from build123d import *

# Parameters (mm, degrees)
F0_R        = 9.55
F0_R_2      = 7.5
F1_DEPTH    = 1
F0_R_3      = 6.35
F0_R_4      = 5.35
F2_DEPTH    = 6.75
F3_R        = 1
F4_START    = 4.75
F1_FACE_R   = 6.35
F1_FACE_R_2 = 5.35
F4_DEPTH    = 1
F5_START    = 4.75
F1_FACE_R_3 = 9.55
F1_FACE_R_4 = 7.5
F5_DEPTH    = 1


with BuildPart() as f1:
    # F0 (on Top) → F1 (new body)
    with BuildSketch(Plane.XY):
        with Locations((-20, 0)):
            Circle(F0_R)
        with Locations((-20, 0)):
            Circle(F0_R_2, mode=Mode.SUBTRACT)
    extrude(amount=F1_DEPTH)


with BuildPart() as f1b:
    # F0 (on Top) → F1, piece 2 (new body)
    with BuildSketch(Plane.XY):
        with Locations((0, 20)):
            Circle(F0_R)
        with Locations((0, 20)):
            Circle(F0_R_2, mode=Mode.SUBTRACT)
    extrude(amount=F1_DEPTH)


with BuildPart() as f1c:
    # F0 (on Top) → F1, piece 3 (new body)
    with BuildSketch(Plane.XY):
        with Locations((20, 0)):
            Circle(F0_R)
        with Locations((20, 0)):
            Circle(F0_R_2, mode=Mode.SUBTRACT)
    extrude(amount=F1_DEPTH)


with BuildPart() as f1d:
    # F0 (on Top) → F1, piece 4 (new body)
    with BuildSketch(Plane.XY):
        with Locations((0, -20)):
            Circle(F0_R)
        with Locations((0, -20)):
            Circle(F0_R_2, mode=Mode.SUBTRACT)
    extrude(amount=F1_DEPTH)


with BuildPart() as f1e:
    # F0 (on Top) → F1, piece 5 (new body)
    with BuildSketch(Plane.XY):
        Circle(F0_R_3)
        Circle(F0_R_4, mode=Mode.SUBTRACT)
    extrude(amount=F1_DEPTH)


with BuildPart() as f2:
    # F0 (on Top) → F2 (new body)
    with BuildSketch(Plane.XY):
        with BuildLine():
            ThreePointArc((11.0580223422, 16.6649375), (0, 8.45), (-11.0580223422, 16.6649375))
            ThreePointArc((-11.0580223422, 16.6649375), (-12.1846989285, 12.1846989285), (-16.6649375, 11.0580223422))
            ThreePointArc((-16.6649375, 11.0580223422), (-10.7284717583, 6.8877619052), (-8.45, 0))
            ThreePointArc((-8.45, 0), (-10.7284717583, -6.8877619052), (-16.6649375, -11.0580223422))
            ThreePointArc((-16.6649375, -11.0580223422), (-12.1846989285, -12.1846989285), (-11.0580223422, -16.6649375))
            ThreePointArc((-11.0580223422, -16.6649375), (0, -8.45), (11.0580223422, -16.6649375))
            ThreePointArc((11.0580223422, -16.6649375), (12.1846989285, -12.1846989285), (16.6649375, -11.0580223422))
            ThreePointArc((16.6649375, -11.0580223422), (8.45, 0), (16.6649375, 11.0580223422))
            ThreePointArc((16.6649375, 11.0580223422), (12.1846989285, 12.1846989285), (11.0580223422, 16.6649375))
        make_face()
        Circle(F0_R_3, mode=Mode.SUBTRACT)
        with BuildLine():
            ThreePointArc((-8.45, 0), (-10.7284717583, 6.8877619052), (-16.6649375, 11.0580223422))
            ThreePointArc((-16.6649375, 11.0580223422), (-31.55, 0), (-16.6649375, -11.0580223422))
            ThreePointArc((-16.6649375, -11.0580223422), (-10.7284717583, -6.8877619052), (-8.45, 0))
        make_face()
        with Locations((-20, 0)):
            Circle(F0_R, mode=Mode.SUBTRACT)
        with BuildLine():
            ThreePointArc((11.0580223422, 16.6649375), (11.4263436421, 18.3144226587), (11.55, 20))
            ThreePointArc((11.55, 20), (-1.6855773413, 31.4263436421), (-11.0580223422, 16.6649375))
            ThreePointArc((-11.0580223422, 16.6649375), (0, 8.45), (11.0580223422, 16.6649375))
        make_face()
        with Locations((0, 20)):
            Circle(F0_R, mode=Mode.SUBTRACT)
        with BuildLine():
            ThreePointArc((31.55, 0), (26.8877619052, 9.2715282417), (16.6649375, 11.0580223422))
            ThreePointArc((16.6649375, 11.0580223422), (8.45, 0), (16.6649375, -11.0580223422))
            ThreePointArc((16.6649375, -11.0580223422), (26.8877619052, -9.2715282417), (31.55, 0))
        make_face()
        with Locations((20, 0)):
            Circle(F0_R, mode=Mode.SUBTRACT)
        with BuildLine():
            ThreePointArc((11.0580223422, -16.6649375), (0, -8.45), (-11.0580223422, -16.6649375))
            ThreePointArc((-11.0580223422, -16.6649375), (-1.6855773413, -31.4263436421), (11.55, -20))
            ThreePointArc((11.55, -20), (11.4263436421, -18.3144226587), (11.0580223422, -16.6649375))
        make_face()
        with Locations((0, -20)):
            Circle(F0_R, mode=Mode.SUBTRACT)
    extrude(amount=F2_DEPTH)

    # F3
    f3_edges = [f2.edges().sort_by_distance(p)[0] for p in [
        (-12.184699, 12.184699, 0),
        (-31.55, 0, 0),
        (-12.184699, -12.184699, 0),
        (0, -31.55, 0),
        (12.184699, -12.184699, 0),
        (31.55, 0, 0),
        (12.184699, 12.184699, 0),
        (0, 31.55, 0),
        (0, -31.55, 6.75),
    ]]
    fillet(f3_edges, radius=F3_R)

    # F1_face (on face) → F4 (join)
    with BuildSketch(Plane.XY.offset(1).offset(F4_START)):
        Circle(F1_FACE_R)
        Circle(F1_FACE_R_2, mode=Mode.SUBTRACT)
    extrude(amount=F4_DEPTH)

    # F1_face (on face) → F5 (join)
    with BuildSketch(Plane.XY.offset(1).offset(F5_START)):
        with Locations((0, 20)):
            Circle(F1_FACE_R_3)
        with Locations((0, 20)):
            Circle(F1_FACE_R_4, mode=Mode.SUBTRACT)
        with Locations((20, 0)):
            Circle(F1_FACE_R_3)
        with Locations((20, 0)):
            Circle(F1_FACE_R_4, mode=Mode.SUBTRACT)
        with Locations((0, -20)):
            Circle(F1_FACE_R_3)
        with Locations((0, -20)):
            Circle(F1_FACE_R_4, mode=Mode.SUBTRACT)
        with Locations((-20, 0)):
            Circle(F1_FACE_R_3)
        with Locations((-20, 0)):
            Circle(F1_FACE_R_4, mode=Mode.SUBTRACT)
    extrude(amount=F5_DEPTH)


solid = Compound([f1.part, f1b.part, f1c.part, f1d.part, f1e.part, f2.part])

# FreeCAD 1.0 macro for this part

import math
import FreeCAD as App
import Part
import Sketcher
from FreeCAD import Vector
Q = App.Units.Quantity


def edges_at(feature, points):
    """Names of the edges that pass closest to the given points."""
    edges = feature.Shape.Edges
    near = lambda p: min(range(len(edges)), key=lambda i: edges[i].distToShape(Part.Vertex(*p))[0])
    return sorted({f"Edge{near(p) + 1}" for p in points})

doc = App.newDocument("Part")
body = doc.addObject("PartDesign::Body", "Body")

# Sketch on XY plane
sketch1 = doc.addObject("Sketcher::SketchObject", "Sketch")
body.addObject(sketch1)
sketch1.AttachmentSupport = (doc.XY_Plane, [""])
sketch1.MapMode = "FlatFace"
sketch1.addGeometry(Part.Circle(Vector(-20, 0, 0), Vector(0, 0, 1), 10), False)
sketch1.addGeometry(Part.Circle(Vector(-20, 0, 0), Vector(0, 0, 1), 8), False)
sketch1.addConstraint(Sketcher.Constraint("Coincident", 1, 3, 0, 3))
sketch1.addConstraint(Sketcher.Constraint("PointOnObject", 0, 3, -1))
sketch1.addConstraint(Sketcher.Constraint("Diameter", 1, Q("15 mm")))
sketch1.addConstraint(Sketcher.Constraint("Diameter", 0, Q("19.1 mm")))
sketch1.addConstraint(Sketcher.Constraint("DistanceX", 0, 3, -1, 1, Q("20 mm")))
pad1 = doc.addObject("PartDesign::Pad", "Pad")
body.addObject(pad1)
pad1.Profile = sketch1
pad1.Length = 1
body2 = doc.addObject("PartDesign::Body", "Body001")

# Sketch on XY plane
sketch2 = doc.addObject("Sketcher::SketchObject", "Sketch001")
body2.addObject(sketch2)
sketch2.AttachmentSupport = (doc.getObject("XY_Plane001"), [""])
sketch2.MapMode = "FlatFace"
sketch2.addGeometry(Part.Circle(Vector(0, 20, 0), Vector(0, 0, 1), 10), False)
sketch2.addGeometry(Part.Circle(Vector(0, 20, 0), Vector(0, 0, 1), 8), False)
sketch2.addConstraint(Sketcher.Constraint("Coincident", 1, 3, 0, 3))
sketch2.addConstraint(Sketcher.Constraint("PointOnObject", 0, 3, -2))
sketch2.addConstraint(Sketcher.Constraint("Diameter", 1, Q("15 mm")))
sketch2.addConstraint(Sketcher.Constraint("Diameter", 0, Q("19.1 mm")))
sketch2.addConstraint(Sketcher.Constraint("DistanceY", -1, 1, 0, 3, Q("20 mm")))
pad2 = doc.addObject("PartDesign::Pad", "Pad001")
body2.addObject(pad2)
pad2.Profile = sketch2
pad2.Length = 1
body3 = doc.addObject("PartDesign::Body", "Body002")

# Sketch on XY plane
sketch3 = doc.addObject("Sketcher::SketchObject", "Sketch002")
body3.addObject(sketch3)
sketch3.AttachmentSupport = (doc.getObject("XY_Plane002"), [""])
sketch3.MapMode = "FlatFace"
sketch3.addGeometry(Part.Circle(Vector(20, 0, 0), Vector(0, 0, 1), 10), False)
sketch3.addGeometry(Part.Circle(Vector(20, 0, 0), Vector(0, 0, 1), 8), False)
sketch3.addConstraint(Sketcher.Constraint("Coincident", 1, 3, 0, 3))
sketch3.addConstraint(Sketcher.Constraint("PointOnObject", 0, 3, -1))
sketch3.addConstraint(Sketcher.Constraint("Diameter", 1, Q("15 mm")))
sketch3.addConstraint(Sketcher.Constraint("Diameter", 0, Q("19.1 mm")))
sketch3.addConstraint(Sketcher.Constraint("DistanceX", -1, 1, 0, 3, Q("20 mm")))
pad3 = doc.addObject("PartDesign::Pad", "Pad002")
body3.addObject(pad3)
pad3.Profile = sketch3
pad3.Length = 1
body4 = doc.addObject("PartDesign::Body", "Body003")

# Sketch on XY plane
sketch4 = doc.addObject("Sketcher::SketchObject", "Sketch003")
body4.addObject(sketch4)
sketch4.AttachmentSupport = (doc.getObject("XY_Plane003"), [""])
sketch4.MapMode = "FlatFace"
sketch4.addGeometry(Part.Circle(Vector(0, -20, 0), Vector(0, 0, 1), 10), False)
sketch4.addGeometry(Part.Circle(Vector(0, -20, 0), Vector(0, 0, 1), 8), False)
sketch4.addConstraint(Sketcher.Constraint("Coincident", 1, 3, 0, 3))
sketch4.addConstraint(Sketcher.Constraint("PointOnObject", 0, 3, -2))
sketch4.addConstraint(Sketcher.Constraint("Diameter", 1, Q("15 mm")))
sketch4.addConstraint(Sketcher.Constraint("Diameter", 0, Q("19.1 mm")))
sketch4.addConstraint(Sketcher.Constraint("DistanceY", 0, 3, -1, 1, Q("20 mm")))
pad4 = doc.addObject("PartDesign::Pad", "Pad003")
body4.addObject(pad4)
pad4.Profile = sketch4
pad4.Length = 1
body5 = doc.addObject("PartDesign::Body", "Body004")

# Sketch on XY plane
sketch5 = doc.addObject("Sketcher::SketchObject", "Sketch004")
body5.addObject(sketch5)
sketch5.AttachmentSupport = (doc.getObject("XY_Plane004"), [""])
sketch5.MapMode = "FlatFace"
sketch5.addGeometry(Part.Circle(Vector(0, 0, 0), Vector(0, 0, 1), 6), False)
sketch5.addGeometry(Part.Circle(Vector(0, 0, 0), Vector(0, 0, 1), 5), False)
sketch5.addConstraint(Sketcher.Constraint("Coincident", 0, 3, -1, 1))
sketch5.addConstraint(Sketcher.Constraint("Coincident", 1, 3, -1, 1))
sketch5.addConstraint(Sketcher.Constraint("Diameter", 0, Q("12.7 mm")))
sketch5.addConstraint(Sketcher.Constraint("Diameter", 1, Q("10.7 mm")))
pad5 = doc.addObject("PartDesign::Pad", "Pad004")
body5.addObject(pad5)
pad5.Profile = sketch5
pad5.Length = 1
body6 = doc.addObject("PartDesign::Body", "Body005")

# Sketch on XY plane
sketch6 = doc.addObject("Sketcher::SketchObject", "Sketch005")
body6.addObject(sketch6)
sketch6.AttachmentSupport = (doc.getObject("XY_Plane005"), [""])
sketch6.MapMode = "FlatFace"
sketch6.addGeometry(Part.ArcOfCircle(Part.Circle(Vector(15.4, 15.4, 0), Vector(0, 0, 1), 4.5), math.radians(163), math.radians(287)), False)
sketch6.addGeometry(Part.ArcOfCircle(Part.Circle(Vector(0, 20, 0), Vector(0, 0, 1), 11.5), math.radians(-16.78), math.radians(0)), False)
sketch6.addGeometry(Part.ArcOfCircle(Part.Circle(Vector(0, 20, 0), Vector(0, 0, 1), 11.6), math.radians(0), math.radians(197)), False)
sketch6.addGeometry(Part.ArcOfCircle(Part.Circle(Vector(-15.4, 15.4, 0), Vector(0, 0, 1), 4.5), math.radians(-107), math.radians(17)), False)
sketch6.addGeometry(Part.ArcOfCircle(Part.Circle(Vector(-20, 0, 0), Vector(0, 0, 1), 11.6), math.radians(73), math.radians(287)), False)
sketch6.addGeometry(Part.ArcOfCircle(Part.Circle(Vector(-15.4, -15.4, 0), Vector(0, 0, 1), 4.5), math.radians(-17), math.radians(107)), False)
sketch6.addGeometry(Part.ArcOfCircle(Part.Circle(Vector(0, -20, 0), Vector(0, 0, 1), 11.6), math.radians(163), math.radians(360)), False)
sketch6.addGeometry(Part.ArcOfCircle(Part.Circle(Vector(0, -20, 0), Vector(0, 0, 1), 11.5), math.radians(0), math.radians(16.78)), False)
sketch6.addGeometry(Part.ArcOfCircle(Part.Circle(Vector(15.4, -15.4, 0), Vector(0, 0, 1), 4.5), math.radians(73), math.radians(197)), False)
sketch6.addGeometry(Part.ArcOfCircle(Part.Circle(Vector(20, 0, 0), Vector(0, 0, 1), 11.6), math.radians(-107), math.radians(0)), False)
sketch6.addGeometry(Part.ArcOfCircle(Part.Circle(Vector(20, 0, 0), Vector(0, 0, 1), 11.6), math.radians(0), math.radians(107)), False)
sketch6.addGeometry(Part.Circle(Vector(0, -20, 0), Vector(0, 0, 1), 9.6), False)
sketch6.addGeometry(Part.Circle(Vector(-20, 0, 0), Vector(0, 0, 1), 9.6), False)
sketch6.addGeometry(Part.Circle(Vector(0, 20, 0), Vector(0, 0, 1), 9.6), False)
sketch6.addGeometry(Part.Circle(Vector(0, 0, 0), Vector(0, 0, 1), 6.3), False)
sketch6.addGeometry(Part.Circle(Vector(20, 0, 0), Vector(0, 0, 1), 9.6), False)
sketch6.addConstraint(Sketcher.Constraint("Coincident", 0, 1, 1, 1))
sketch6.addConstraint(Sketcher.Constraint("Tangent", 1, 2, 2, 1))
sketch6.addConstraint(Sketcher.Constraint("Coincident", 2, 2, 3, 2))
sketch6.addConstraint(Sketcher.Constraint("Coincident", 3, 1, 4, 1))
sketch6.addConstraint(Sketcher.Constraint("Coincident", 4, 2, 5, 2))
sketch6.addConstraint(Sketcher.Constraint("Coincident", 5, 1, 6, 1))
sketch6.addConstraint(Sketcher.Constraint("Tangent", 6, 2, 7, 1))
sketch6.addConstraint(Sketcher.Constraint("Coincident", 7, 2, 8, 2))
sketch6.addConstraint(Sketcher.Constraint("Coincident", 8, 1, 9, 1))
sketch6.addConstraint(Sketcher.Constraint("Tangent", 9, 2, 10, 1))
sketch6.addConstraint(Sketcher.Constraint("Coincident", 10, 2, 0, 2))
sketch6.addConstraint(Sketcher.Constraint("Coincident", 14, 3, -1, 1))
sketch6.addConstraint(Sketcher.Constraint("Coincident", 11, 3, 6, 3))
sketch6.addConstraint(Sketcher.Constraint("Coincident", 12, 3, 4, 3))
sketch6.addConstraint(Sketcher.Constraint("Coincident", 13, 3, 1, 3))
sketch6.addConstraint(Sketcher.Constraint("Coincident", 15, 3, 9, 3))
sketch6.addConstraint(Sketcher.Constraint("Equal", 1, 2))
sketch6.addConstraint(Sketcher.Constraint("Equal", 0, 3))
sketch6.addConstraint(Sketcher.Constraint("Equal", 2, 4))
sketch6.addConstraint(Sketcher.Constraint("Equal", 3, 5))
sketch6.addConstraint(Sketcher.Constraint("Equal", 4, 6))
sketch6.addConstraint(Sketcher.Constraint("Equal", 6, 7))
sketch6.addConstraint(Sketcher.Constraint("Equal", 5, 8))
sketch6.addConstraint(Sketcher.Constraint("Equal", 7, 9))
sketch6.addConstraint(Sketcher.Constraint("Equal", 9, 10))
sketch6.addConstraint(Sketcher.Constraint("Equal", 11, 12))
sketch6.addConstraint(Sketcher.Constraint("Equal", 12, 13))
sketch6.addConstraint(Sketcher.Constraint("Equal", 13, 15))
sketch6.addConstraint(Sketcher.Constraint("Symmetric", 0, 3, 5, 3, -1, 1))
sketch6.addConstraint(Sketcher.Constraint("Symmetric", 1, 3, 6, 3, -1, 1))
sketch6.addConstraint(Sketcher.Constraint("Symmetric", 3, 3, 8, 3, -1, 1))
sketch6.addConstraint(Sketcher.Constraint("Symmetric", 0, 3, 3, 3, -2))
sketch6.addConstraint(Sketcher.Constraint("PointOnObject", 9, 2, -1))
sketch6.addConstraint(Sketcher.Constraint("Horizontal", 13, 3, 1, 2))
sketch6.addConstraint(Sketcher.Constraint("Horizontal", 0, 1, 2, 2))
sketch6.addConstraint(Sketcher.Constraint("Horizontal", 11, 3, 6, 2))
sketch6.addConstraint(Sketcher.Constraint("Horizontal", 4, 2, 8, 1))
sketch6.addConstraint(Sketcher.Constraint("Horizontal", 3, 1, 10, 2))
sketch6.addConstraint(Sketcher.Constraint("Vertical", 3, 1, 4, 2))
sketch6.addConstraint(Sketcher.Constraint("Diameter", 11, Q("19.1 mm")))
sketch6.addConstraint(Sketcher.Constraint("Diameter", 14, Q("12.7 mm")))
sketch6.addConstraint(Sketcher.Constraint("Radius", 0, Q("4.5 mm")))
sketch6.addConstraint(Sketcher.Constraint("Radius", 1, Q("11.55 mm")))
sketch6.addConstraint(Sketcher.Constraint("DistanceY", -1, 1, 1, 3, Q("20 mm")))
sketch6.addConstraint(Sketcher.Constraint("DistanceX", 4, 3, -1, 1, Q("20 mm")))
sketch6.addConstraint(Sketcher.Constraint("DistanceY", 0, 3, 0, 1, Q("1.298258 mm")))
sketch6.addConstraint(Sketcher.Constraint("DistanceX", 3, 1, 3, 3, Q("1.298258 mm")))
pad6 = doc.addObject("PartDesign::Pad", "Pad005")
body6.addObject(pad6)
pad6.Profile = sketch6
pad6.Length = 6.75
doc.recompute()

fillet = doc.addObject("PartDesign::Fillet", "Fillet")
body6.addObject(fillet)
fillet.Base = (pad6, edges_at(pad6, [
    (-12.185, 12.185, 0),
    (-31.55, 0, 0),
    (-12.185, -12.185, 0),
    (-1.686, -31.426, 0),
    (12.185, -12.185, 0),
    (31.55, 0, 3.375),
    (12.185, 12.185, 0),
    (-1.686, 31.426, 0),
    (-1.686, -31.426, 6.75),
]))
fillet.Radius = 1

# Sketch on XY plane
sketch7 = doc.addObject("Sketcher::SketchObject", "Sketch006")
body6.addObject(sketch7)
sketch7.AttachmentSupport = (doc.getObject("XY_Plane005"), [""])
sketch7.MapMode = "FlatFace"
sketch7.AttachmentOffset = App.Placement(Vector(0, 0, 5.75), App.Rotation())
sketch7.addGeometry(Part.Circle(Vector(0, 0, 0), Vector(0, 0, 1), 6), False)
sketch7.addGeometry(Part.Circle(Vector(0, 0, 0), Vector(0, 0, 1), 5), False)
sketch7.addConstraint(Sketcher.Constraint("Coincident", 0, 3, -1, 1))
sketch7.addConstraint(Sketcher.Constraint("Coincident", 1, 3, -1, 1))
sketch7.addConstraint(Sketcher.Constraint("Diameter", 0, Q("12.7 mm")))
sketch7.addConstraint(Sketcher.Constraint("Diameter", 1, Q("10.7 mm")))
pad7 = doc.addObject("PartDesign::Pad", "Pad006")
body6.addObject(pad7)
pad7.Profile = sketch7
pad7.Length = 1

# Sketch on XY plane
sketch8 = doc.addObject("Sketcher::SketchObject", "Sketch007")
body6.addObject(sketch8)
sketch8.AttachmentSupport = (doc.getObject("XY_Plane005"), [""])
sketch8.MapMode = "FlatFace"
sketch8.AttachmentOffset = App.Placement(Vector(0, 0, 5.75), App.Rotation())
sketch8.addGeometry(Part.Circle(Vector(0, 20, 0), Vector(0, 0, 1), 10), False)
sketch8.addGeometry(Part.Circle(Vector(0, 20, 0), Vector(0, 0, 1), 8), False)
sketch8.addGeometry(Part.Circle(Vector(20, 0, 0), Vector(0, 0, 1), 10), False)
sketch8.addGeometry(Part.Circle(Vector(20, 0, 0), Vector(0, 0, 1), 8), False)
sketch8.addGeometry(Part.Circle(Vector(0, -20, 0), Vector(0, 0, 1), 10), False)
sketch8.addGeometry(Part.Circle(Vector(0, -20, 0), Vector(0, 0, 1), 8), False)
sketch8.addGeometry(Part.Circle(Vector(-20, 0, 0), Vector(0, 0, 1), 10), False)
sketch8.addGeometry(Part.Circle(Vector(-20, 0, 0), Vector(0, 0, 1), 8), False)
sketch8.addConstraint(Sketcher.Constraint("Coincident", 1, 3, 0, 3))
sketch8.addConstraint(Sketcher.Constraint("Coincident", 3, 3, 2, 3))
sketch8.addConstraint(Sketcher.Constraint("Coincident", 5, 3, 4, 3))
sketch8.addConstraint(Sketcher.Constraint("Coincident", 7, 3, 6, 3))
sketch8.addConstraint(Sketcher.Constraint("Equal", 0, 2))
sketch8.addConstraint(Sketcher.Constraint("Equal", 1, 3))
sketch8.addConstraint(Sketcher.Constraint("Equal", 2, 4))
sketch8.addConstraint(Sketcher.Constraint("Equal", 3, 5))
sketch8.addConstraint(Sketcher.Constraint("Equal", 4, 6))
sketch8.addConstraint(Sketcher.Constraint("Equal", 5, 7))
sketch8.addConstraint(Sketcher.Constraint("Symmetric", 0, 3, 4, 3, -1, 1))
sketch8.addConstraint(Sketcher.Constraint("Symmetric", 2, 3, 6, 3, -1, 1))
sketch8.addConstraint(Sketcher.Constraint("PointOnObject", 0, 3, -2))
sketch8.addConstraint(Sketcher.Constraint("PointOnObject", 2, 3, -1))
sketch8.addConstraint(Sketcher.Constraint("Diameter", 1, Q("15 mm")))
sketch8.addConstraint(Sketcher.Constraint("Diameter", 0, Q("19.1 mm")))
sketch8.addConstraint(Sketcher.Constraint("DistanceY", -1, 1, 0, 3, Q("20 mm")))
sketch8.addConstraint(Sketcher.Constraint("DistanceX", -1, 1, 2, 3, Q("20 mm")))
pad8 = doc.addObject("PartDesign::Pad", "Pad007")
body6.addObject(pad8)
pad8.Profile = sketch8
pad8.Length = 1

doc.recompute()
